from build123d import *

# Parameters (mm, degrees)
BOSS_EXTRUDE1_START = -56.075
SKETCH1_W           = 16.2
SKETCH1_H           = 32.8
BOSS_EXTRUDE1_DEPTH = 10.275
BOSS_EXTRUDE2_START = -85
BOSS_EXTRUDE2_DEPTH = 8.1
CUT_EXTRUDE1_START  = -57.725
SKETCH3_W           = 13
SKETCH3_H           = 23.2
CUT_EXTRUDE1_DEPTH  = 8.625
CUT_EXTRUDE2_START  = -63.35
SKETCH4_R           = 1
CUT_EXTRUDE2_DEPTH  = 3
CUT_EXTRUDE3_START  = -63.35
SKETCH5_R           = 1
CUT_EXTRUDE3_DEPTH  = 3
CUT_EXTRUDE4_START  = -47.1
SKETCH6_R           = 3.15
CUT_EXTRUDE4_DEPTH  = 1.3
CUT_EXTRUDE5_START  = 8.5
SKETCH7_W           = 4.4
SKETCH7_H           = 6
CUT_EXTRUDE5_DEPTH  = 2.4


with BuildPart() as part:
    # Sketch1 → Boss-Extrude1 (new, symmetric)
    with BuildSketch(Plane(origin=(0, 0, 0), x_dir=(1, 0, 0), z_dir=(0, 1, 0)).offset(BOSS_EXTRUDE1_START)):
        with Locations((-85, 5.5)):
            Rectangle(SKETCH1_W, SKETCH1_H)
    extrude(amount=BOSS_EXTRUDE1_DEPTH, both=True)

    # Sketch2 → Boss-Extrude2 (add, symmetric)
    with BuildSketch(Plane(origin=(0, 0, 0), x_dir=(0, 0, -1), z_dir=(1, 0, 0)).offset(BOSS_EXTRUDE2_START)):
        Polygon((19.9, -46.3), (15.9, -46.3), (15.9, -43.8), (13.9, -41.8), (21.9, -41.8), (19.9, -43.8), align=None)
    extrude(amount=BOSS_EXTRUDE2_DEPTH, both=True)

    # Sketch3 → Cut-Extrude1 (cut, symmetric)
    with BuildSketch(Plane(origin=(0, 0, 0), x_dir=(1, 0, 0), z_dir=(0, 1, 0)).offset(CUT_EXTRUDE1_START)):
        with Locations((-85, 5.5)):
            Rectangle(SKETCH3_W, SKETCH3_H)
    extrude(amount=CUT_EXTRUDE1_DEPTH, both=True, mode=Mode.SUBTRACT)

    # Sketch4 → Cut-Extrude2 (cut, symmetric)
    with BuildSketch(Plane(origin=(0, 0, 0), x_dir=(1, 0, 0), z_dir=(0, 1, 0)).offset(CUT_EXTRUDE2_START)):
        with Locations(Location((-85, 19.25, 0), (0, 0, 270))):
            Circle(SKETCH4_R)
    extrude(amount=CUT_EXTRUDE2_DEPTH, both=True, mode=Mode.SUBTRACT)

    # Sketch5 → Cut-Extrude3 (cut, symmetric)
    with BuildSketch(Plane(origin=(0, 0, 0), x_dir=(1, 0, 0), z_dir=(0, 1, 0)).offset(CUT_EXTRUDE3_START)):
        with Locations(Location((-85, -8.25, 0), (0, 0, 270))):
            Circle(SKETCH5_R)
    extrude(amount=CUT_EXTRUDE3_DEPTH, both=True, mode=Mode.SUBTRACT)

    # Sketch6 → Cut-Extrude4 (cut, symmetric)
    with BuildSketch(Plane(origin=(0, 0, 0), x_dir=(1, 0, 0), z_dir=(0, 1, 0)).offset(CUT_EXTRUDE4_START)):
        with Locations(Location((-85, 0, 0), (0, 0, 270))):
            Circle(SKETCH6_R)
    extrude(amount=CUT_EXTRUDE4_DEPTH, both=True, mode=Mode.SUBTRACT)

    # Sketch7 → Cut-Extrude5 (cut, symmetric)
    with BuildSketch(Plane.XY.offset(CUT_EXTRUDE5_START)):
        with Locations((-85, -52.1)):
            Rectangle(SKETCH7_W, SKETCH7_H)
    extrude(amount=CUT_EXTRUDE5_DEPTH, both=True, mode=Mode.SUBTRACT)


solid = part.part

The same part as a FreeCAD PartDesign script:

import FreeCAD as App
import Part
import Sketcher
Q = App.Units.Quantity

doc = App.newDocument("Part")
body = doc.addObject("PartDesign::Body", "Body")

sketch1 = body.newObject("Sketcher::SketchObject", "Sketch")
sketch1.AttachmentSupport = (doc.getObject("XZ_Plane"), [""])
sketch1.MapMode = "FlatFace"
sketch1.AttachmentOffset = App.Placement(App.Vector(0, 0, 56.075), App.Rotation())
sketch1.addGeometry(Part.LineSegment(App.Vector(-93, -22, 0), App.Vector(-93, 11, 0)), False)
sketch1.addGeometry(Part.LineSegment(App.Vector(-93, 11, 0), App.Vector(-77, 11, 0)), False)
sketch1.addGeometry(Part.LineSegment(App.Vector(-77, 11, 0), App.Vector(-77, -22, 0)), False)
sketch1.addGeometry(Part.LineSegment(App.Vector(-77, -22, 0), App.Vector(-93, -22, 0)), False)
sketch1.addConstraint(Sketcher.Constraint("Coincident", 0, 2, 1, 1))
sketch1.addConstraint(Sketcher.Constraint("Coincident", 1, 2, 2, 1))
sketch1.addConstraint(Sketcher.Constraint("Coincident", 2, 2, 3, 1))
sketch1.addConstraint(Sketcher.Constraint("Coincident", 3, 2, 0, 1))
sketch1.addConstraint(Sketcher.Constraint("Vertical", 0))
sketch1.addConstraint(Sketcher.Constraint("Horizontal", 1))
sketch1.addConstraint(Sketcher.Constraint("Vertical", 2))
sketch1.addConstraint(Sketcher.Constraint("Horizontal", 3))
sketch1.addConstraint(Sketcher.Constraint("DistanceX", 1, 1, 1, 2, Q("16.2 mm")))
sketch1.addConstraint(Sketcher.Constraint("DistanceY", 0, 1, 0, 2, Q("32.8 mm")))
sketch1.addConstraint(Sketcher.Constraint("DistanceX", 0, 2, -1, 1, Q("93.1 mm")))
sketch1.addConstraint(Sketcher.Constraint("DistanceY", -1, 1, 0, 2, Q("10.9 mm")))
pad1 = body.newObject("PartDesign::Pad", "Pad")
pad1.Profile = sketch1
pad1.Length = 20.55
pad1.Midplane = True

sketch2 = body.newObject("Sketcher::SketchObject", "Sketch001")
sketch2.AttachmentSupport = (doc.getObject("YZ_Plane"), [""])
sketch2.MapMode = "FlatFace"
sketch2.AttachmentOffset = App.Placement(App.Vector(0, 0, -85), App.Rotation())
sketch2.addGeometry(Part.LineSegment(App.Vector(-46.3, -15.9, 0), App.Vector(-46.3, -19.9, 0)), False)
sketch2.addGeometry(Part.LineSegment(App.Vector(-46.3, -19.9, 0), App.Vector(-43.8, -19.9, 0)), False)
sketch2.addGeometry(Part.LineSegment(App.Vector(-43.8, -19.9, 0), App.Vector(-41.8, -21.9, 0)), False)
sketch2.addGeometry(Part.LineSegment(App.Vector(-41.8, -21.9, 0), App.Vector(-41.8, -13.9, 0)), False)
sketch2.addGeometry(Part.LineSegment(App.Vector(-41.8, -13.9, 0), App.Vector(-43.8, -15.9, 0)), False)
sketch2.addGeometry(Part.LineSegment(App.Vector(-43.8, -15.9, 0), App.Vector(-46.3, -15.9, 0)), False)
sketch2.addConstraint(Sketcher.Constraint("Coincident", 0, 2, 1, 1))
sketch2.addConstraint(Sketcher.Constraint("Coincident", 1, 2, 2, 1))
sketch2.addConstraint(Sketcher.Constraint("Coincident", 2, 2, 3, 1))
sketch2.addConstraint(Sketcher.Constraint("Coincident", 3, 2, 4, 1))
sketch2.addConstraint(Sketcher.Constraint("Coincident", 4, 2, 5, 1))
sketch2.addConstraint(Sketcher.Constraint("Coincident", 5, 2, 0, 1))
sketch2.addConstraint(Sketcher.Constraint("Vertical", 0))
sketch2.addConstraint(Sketcher.Constraint("Horizontal", 1))
sketch2.addConstraint(Sketcher.Constraint("Vertical", 3))
sketch2.addConstraint(Sketcher.Constraint("Horizontal", 5))
sketch2.addConstraint(Sketcher.Constraint("Perpendicular", 2, 4))
sketch2.addConstraint(Sketcher.Constraint("Vertical", 1, 2, 4, 2))
sketch2.addConstraint(Sketcher.Constraint("Equal", 2, 4))
sketch2.addConstraint(Sketcher.Constraint("DistanceY", 0, 2, 0, 1, Q("4 mm")))
sketch2.addConstraint(Sketcher.Constraint("DistanceY", 3, 1, 3, 2, Q("8 mm")))
sketch2.addConstraint(Sketcher.Constraint("DistanceX", 1, 1, 1, 2, Q("2.5 mm")))
sketch2.addConstraint(Sketcher.Constraint("DistanceX", 0, 2, -1, 1, Q("46.3 mm")))
sketch2.addConstraint(Sketcher.Constraint("DistanceY", 0, 2, -1, 1, Q("19.9 mm")))
pad2 = body.newObject("PartDesign::Pad", "Pad001")
pad2.Profile = sketch2
pad2.Length = 16.2
pad2.Midplane = True

sketch3 = body.newObject("Sketcher::SketchObject", "Sketch002")
sketch3.AttachmentSupport = (doc.getObject("XZ_Plane"), [""])
sketch3.MapMode = "FlatFace"
sketch3.AttachmentOffset = App.Placement(App.Vector(0, 0, 57.725), App.Rotation())
sketch3.addGeometry(Part.LineSegment(App.Vector(-92, -17, 0), App.Vector(-92, 6, 0)), False)
sketch3.addGeometry(Part.LineSegment(App.Vector(-92, 6, 0), App.Vector(-78, 6, 0)), False)
sketch3.addGeometry(Part.LineSegment(App.Vector(-78, 6, 0), App.Vector(-78, -17, 0)), False)
sketch3.addGeometry(Part.LineSegment(App.Vector(-78, -17, 0), App.Vector(-92, -17, 0)), False)
sketch3.addConstraint(Sketcher.Constraint("Coincident", 0, 2, 1, 1))
sketch3.addConstraint(Sketcher.Constraint("Coincident", 1, 2, 2, 1))
sketch3.addConstraint(Sketcher.Constraint("Coincident", 2, 2, 3, 1))
sketch3.addConstraint(Sketcher.Constraint("Coincident", 3, 2, 0, 1))
sketch3.addConstraint(Sketcher.Constraint("Vertical", 0))
sketch3.addConstraint(Sketcher.Constraint("Horizontal", 1))
sketch3.addConstraint(Sketcher.Constraint("Vertical", 2))
sketch3.addConstraint(Sketcher.Constraint("Horizontal", 3))
sketch3.addConstraint(Sketcher.Constraint("DistanceX", 1, 1, 1, 2, Q("13 mm")))
sketch3.addConstraint(Sketcher.Constraint("DistanceY", 0, 1, 0, 2, Q("23.2 mm")))
sketch3.addConstraint(Sketcher.Constraint("DistanceX", 0, 2, -1, 1, Q("91.5 mm")))
sketch3.addConstraint(Sketcher.Constraint("DistanceY", -1, 1, 0, 2, Q("6.1 mm")))
pocket1 = body.newObject("PartDesign::Pocket", "Pocket")
pocket1.Profile = sketch3
pocket1.Length = 17.25
pocket1.Midplane = True

sketch4 = body.newObject("Sketcher::SketchObject", "Sketch003")
sketch4.AttachmentSupport = (doc.getObject("XZ_Plane"), [""])
sketch4.MapMode = "FlatFace"
sketch4.AttachmentOffset = App.Placement(App.Vector(0, 0, 63.35), App.Rotation())
sketch4.addGeometry(Part.Circle(App.Vector(-85, -19.2, 0), App.Vector(0, 0, 1), 1), False)
sketch4.addConstraint(Sketcher.Constraint("Diameter", 0, Q("2 mm")))
sketch4.addConstraint(Sketcher.Constraint("DistanceX", 0, 3, -1, 1, Q("85 mm")))
sketch4.addConstraint(Sketcher.Constraint("DistanceY", 0, 3, -1, 1, Q("19.25 mm")))
pocket2 = body.newObject("PartDesign::Pocket", "Pocket001")
pocket2.Profile = sketch4
pocket2.Length = 6
pocket2.Midplane = True

sketch5 = body.newObject("Sketcher::SketchObject", "Sketch004")
sketch5.AttachmentSupport = (doc.getObject("XZ_Plane"), [""])
sketch5.MapMode = "FlatFace"
sketch5.AttachmentOffset = App.Placement(App.Vector(0, 0, 63.35), App.Rotation())
sketch5.addGeometry(Part.Circle(App.Vector(-85, 8.2, 0), App.Vector(0, 0, 1), 1), False)
sketch5.addConstraint(Sketcher.Constraint("Diameter", 0, Q("2 mm")))
sketch5.addConstraint(Sketcher.Constraint("DistanceX", 0, 3, -1, 1, Q("85 mm")))
sketch5.addConstraint(Sketcher.Constraint("DistanceY", -1, 1, 0, 3, Q("8.25 mm")))
pocket3 = body.newObject("PartDesign::Pocket", "Pocket002")
pocket3.Profile = sketch5
pocket3.Length = 6
pocket3.Midplane = True

sketch6 = body.newObject("Sketcher::SketchObject", "Sketch005")
sketch6.AttachmentSupport = (doc.getObject("XZ_Plane"), [""])
sketch6.MapMode = "FlatFace"
sketch6.AttachmentOffset = App.Placement(App.Vector(0, 0, 47.1), App.Rotation())
sketch6.addGeometry(Part.Circle(App.Vector(-85, 0, 0), App.Vector(0, 0, 1), 3.1), False)
sketch6.addConstraint(Sketcher.Constraint("PointOnObject", 0, 3, -1))
sketch6.addConstraint(Sketcher.Constraint("Diameter", 0, Q("6.3 mm")))
sketch6.addConstraint(Sketcher.Constraint("DistanceX", 0, 3, -1, 1, Q("85 mm")))
pocket4 = body.newObject("PartDesign::Pocket", "Pocket003")
pocket4.Profile = sketch6
pocket4.Length = 2.6
pocket4.Midplane = True

sketch7 = body.newObject("Sketcher::SketchObject", "Sketch006")
sketch7.AttachmentSupport = (doc.getObject("XY_Plane"), [""])
sketch7.MapMode = "FlatFace"
sketch7.AttachmentOffset = App.Placement(App.Vector(0, 0, 8.5), App.Rotation())
sketch7.addGeometry(Part.LineSegment(App.Vector(-87.2, -49.1, 0), App.Vector(-87.2, -55.1, 0)), False)
sketch7.addGeometry(Part.LineSegment(App.Vector(-87.2, -55.1, 0), App.Vector(-82.8, -55.1, 0)), False)
sketch7.addGeometry(Part.LineSegment(App.Vector(-82.8, -55.1, 0), App.Vector(-82.8, -49.1, 0)), False)
sketch7.addGeometry(Part.LineSegment(App.Vector(-82.8, -49.1, 0), App.Vector(-87.2, -49.1, 0)), False)
sketch7.addConstraint(Sketcher.Constraint("Coincident", 0, 2, 1, 1))
sketch7.addConstraint(Sketcher.Constraint("Coincident", 1, 2, 2, 1))
sketch7.addConstraint(Sketcher.Constraint("Coincident", 2, 2, 3, 1))
sketch7.addConstraint(Sketcher.Constraint("Coincident", 3, 2, 0, 1))
sketch7.addConstraint(Sketcher.Constraint("Vertical", 0))
sketch7.addConstraint(Sketcher.Constraint("Horizontal", 1))
sketch7.addConstraint(Sketcher.Constraint("Vertical", 2))
sketch7.addConstraint(Sketcher.Constraint("Horizontal", 3))
sketch7.addConstraint(Sketcher.Constraint("DistanceY", 0, 2, 0, 1, Q("6 mm")))
sketch7.addConstraint(Sketcher.Constraint("DistanceX", 1, 1, 1, 2, Q("4.4 mm")))
sketch7.addConstraint(Sketcher.Constraint("DistanceX", 0, 2, -1, 1, Q("87.2 mm")))
sketch7.addConstraint(Sketcher.Constraint("DistanceY", 0, 2, -1, 1, Q("55.1 mm")))
pocket5 = body.newObject("PartDesign::Pocket", "Pocket004")
pocket5.Profile = sketch7
pocket5.Length = 4.8
pocket5.Midplane = True

doc.recompute()
